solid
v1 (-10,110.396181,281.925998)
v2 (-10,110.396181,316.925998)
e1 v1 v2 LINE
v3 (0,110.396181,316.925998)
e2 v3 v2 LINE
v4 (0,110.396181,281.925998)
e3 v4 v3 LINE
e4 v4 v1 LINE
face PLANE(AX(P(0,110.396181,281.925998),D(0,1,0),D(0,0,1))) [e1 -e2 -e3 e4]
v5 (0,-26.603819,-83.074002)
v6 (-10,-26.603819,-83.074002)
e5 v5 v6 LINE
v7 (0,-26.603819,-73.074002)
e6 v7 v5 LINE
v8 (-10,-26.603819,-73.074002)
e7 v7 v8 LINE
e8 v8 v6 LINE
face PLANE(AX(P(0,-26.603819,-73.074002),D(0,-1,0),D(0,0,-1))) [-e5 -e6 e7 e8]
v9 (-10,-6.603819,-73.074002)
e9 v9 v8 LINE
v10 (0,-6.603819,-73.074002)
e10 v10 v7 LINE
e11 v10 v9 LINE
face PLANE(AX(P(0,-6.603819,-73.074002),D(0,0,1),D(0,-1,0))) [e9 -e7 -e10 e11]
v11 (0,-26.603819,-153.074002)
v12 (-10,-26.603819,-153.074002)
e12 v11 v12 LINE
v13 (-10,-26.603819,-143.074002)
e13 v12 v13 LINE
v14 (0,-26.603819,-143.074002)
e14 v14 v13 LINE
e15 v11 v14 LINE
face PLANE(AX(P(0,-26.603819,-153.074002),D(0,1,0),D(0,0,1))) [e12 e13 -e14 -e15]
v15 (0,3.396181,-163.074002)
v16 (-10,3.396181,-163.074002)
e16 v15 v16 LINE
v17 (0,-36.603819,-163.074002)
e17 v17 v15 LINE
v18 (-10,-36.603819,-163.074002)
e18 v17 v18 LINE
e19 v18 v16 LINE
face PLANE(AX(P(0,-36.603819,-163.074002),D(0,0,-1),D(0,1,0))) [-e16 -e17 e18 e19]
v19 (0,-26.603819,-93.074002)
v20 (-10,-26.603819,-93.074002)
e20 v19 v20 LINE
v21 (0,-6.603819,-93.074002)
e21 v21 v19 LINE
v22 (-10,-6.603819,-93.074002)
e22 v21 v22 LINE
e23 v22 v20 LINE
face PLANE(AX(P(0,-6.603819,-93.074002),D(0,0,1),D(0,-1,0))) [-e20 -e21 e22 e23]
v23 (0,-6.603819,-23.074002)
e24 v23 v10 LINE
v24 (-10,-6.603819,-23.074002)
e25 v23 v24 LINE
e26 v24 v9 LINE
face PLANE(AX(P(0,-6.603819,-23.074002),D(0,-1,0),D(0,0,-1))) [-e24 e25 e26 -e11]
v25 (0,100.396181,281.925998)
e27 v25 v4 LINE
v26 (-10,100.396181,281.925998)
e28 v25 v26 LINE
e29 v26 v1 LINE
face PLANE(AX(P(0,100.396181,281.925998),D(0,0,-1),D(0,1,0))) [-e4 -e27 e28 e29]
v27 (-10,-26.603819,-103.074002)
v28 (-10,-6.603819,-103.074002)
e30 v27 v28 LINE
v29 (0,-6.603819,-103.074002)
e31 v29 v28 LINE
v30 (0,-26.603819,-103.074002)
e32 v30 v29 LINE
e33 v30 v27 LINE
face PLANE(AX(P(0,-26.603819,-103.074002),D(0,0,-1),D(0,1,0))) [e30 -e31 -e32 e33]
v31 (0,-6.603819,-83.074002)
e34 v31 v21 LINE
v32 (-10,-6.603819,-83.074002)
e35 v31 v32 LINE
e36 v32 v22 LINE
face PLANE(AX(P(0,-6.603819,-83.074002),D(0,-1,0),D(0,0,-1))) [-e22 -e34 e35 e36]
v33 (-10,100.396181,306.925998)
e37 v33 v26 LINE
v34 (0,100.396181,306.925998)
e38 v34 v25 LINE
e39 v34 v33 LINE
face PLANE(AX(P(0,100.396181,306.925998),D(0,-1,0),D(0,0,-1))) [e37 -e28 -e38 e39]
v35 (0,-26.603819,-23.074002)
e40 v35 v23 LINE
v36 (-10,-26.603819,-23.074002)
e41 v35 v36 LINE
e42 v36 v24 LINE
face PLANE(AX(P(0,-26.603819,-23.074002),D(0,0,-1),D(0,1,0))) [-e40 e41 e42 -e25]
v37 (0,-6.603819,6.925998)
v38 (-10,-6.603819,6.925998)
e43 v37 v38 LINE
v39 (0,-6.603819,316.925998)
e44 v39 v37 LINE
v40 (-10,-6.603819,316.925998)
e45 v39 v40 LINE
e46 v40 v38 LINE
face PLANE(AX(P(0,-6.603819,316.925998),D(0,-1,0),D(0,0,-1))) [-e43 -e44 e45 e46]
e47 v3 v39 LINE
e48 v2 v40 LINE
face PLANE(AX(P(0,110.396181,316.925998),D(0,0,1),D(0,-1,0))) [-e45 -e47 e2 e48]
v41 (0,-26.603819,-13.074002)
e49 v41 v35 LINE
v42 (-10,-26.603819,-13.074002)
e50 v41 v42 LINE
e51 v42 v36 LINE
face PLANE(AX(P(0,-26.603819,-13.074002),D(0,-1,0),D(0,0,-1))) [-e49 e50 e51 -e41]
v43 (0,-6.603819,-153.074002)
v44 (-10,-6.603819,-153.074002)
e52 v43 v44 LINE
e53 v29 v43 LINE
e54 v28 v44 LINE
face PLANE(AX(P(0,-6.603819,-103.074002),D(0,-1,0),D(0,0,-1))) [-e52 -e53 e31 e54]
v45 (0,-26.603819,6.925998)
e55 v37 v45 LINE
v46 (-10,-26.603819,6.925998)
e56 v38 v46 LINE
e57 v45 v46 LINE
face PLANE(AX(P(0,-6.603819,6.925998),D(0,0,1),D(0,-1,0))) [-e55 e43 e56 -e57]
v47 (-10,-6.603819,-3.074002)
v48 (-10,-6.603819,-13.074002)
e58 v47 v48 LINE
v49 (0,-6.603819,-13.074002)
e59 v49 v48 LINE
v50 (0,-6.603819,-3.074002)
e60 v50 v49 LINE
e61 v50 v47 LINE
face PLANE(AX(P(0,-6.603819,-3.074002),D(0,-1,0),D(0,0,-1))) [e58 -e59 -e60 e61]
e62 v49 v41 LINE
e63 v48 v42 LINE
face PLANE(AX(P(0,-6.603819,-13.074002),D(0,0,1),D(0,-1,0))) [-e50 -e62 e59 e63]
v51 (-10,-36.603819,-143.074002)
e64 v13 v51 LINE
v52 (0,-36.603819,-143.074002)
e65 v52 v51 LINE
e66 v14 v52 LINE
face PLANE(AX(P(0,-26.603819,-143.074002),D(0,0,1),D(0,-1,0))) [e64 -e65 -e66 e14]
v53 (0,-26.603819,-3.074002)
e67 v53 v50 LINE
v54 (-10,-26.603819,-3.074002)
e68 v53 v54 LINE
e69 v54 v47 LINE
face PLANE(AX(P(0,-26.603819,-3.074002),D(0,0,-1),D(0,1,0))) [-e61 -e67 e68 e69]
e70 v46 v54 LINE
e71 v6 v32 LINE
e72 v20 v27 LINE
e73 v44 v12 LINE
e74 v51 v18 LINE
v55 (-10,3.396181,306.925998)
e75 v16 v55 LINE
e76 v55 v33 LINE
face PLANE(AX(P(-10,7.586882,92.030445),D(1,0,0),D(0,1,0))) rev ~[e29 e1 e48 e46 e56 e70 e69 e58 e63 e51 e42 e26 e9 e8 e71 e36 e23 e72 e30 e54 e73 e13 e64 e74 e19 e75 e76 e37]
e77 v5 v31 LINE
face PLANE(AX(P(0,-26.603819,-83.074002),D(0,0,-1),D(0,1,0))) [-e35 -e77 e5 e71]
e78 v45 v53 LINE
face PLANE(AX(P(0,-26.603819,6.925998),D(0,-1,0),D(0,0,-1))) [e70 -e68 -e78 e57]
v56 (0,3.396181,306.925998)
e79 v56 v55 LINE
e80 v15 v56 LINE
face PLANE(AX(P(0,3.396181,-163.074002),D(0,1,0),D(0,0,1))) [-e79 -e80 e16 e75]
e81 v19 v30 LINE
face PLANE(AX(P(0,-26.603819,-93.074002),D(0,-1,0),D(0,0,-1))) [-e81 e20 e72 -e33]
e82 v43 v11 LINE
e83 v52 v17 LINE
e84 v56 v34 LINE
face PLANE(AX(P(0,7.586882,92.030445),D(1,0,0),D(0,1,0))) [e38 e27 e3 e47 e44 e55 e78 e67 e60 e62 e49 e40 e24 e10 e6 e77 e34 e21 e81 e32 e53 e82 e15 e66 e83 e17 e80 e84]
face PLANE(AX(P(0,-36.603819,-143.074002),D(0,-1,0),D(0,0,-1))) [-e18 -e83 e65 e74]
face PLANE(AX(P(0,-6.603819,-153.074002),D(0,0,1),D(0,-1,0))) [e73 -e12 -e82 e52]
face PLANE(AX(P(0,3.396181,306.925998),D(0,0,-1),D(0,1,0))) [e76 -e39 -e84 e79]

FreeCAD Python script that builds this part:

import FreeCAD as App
import Part
import Sketcher
from FreeCAD import Vector
Q = App.Units.Quantity


def add_polygon(sketch, points):
    """Adds a closed chain of lines whose ends are joined by coincident constraints."""
    first, n = sketch.GeometryCount, len(points)
    for a, b in zip(points, points[1:] + points[:1]):
        sketch.addGeometry(Part.LineSegment(App.Vector(*a, 0), App.Vector(*b, 0)), False)
    for i in range(n):
        sketch.addConstraint(Sketcher.Constraint("Coincident", first + i, 2, first + (i + 1) % n, 1))

doc = App.newDocument("Part")
body = doc.addObject("PartDesign::Body", "Body")

sketch1 = body.newObject("Sketcher::SketchObject", "Sketch")
sketch1.AttachmentSupport = (doc.getObject("YZ_Plane"), [""])
sketch1.MapMode = "FlatFace"
add_polygon(sketch1, [(110.396181, 316.925998), (-6.603819, 316.925998), (-6.603819, 6.925998), (-26.603819, 6.925998), (-26.603819, -3.074002), (-6.603819, -3.074002), (-6.603819, -13.074002), (-26.603819, -13.074002), (-26.603819, -23.074002), (-6.603819, -23.074002), (-6.603819, -73.074002), (-26.603819, -73.074002), (-26.603819, -83.074002), (-6.603819, -83.074002), (-6.603819, -93.074002), (-26.603819, -93.074002), (-26.603819, -103.074002), (-6.603819, -103.074002), (-6.603819, -153.074002), (-26.603819, -153.074002), (-26.603819, -143.074002), (-36.603819, -143.074002), (-36.603819, -163.074002), (3.396181, -163.074002), (3.396181, 306.925998), (100.396181, 306.925998), (100.396181, 281.925998), (110.396181, 281.925998)])
sketch1.addConstraint([
    Sketcher.Constraint("Horizontal", 0),
    Sketcher.Constraint("Vertical", 1),
    Sketcher.Constraint("Horizontal", 2),
    Sketcher.Constraint("Vertical", 3),
    Sketcher.Constraint("Horizontal", 4),
    Sketcher.Constraint("Vertical", 5),
    Sketcher.Constraint("Horizontal", 6),
    Sketcher.Constraint("Vertical", 7),
    Sketcher.Constraint("Horizontal", 8),
    Sketcher.Constraint("Vertical", 9),
    Sketcher.Constraint("Horizontal", 10),
    Sketcher.Constraint("Vertical", 11),
    Sketcher.Constraint("Horizontal", 12),
    Sketcher.Constraint("Vertical", 13),
    Sketcher.Constraint("Horizontal", 14),
    Sketcher.Constraint("Vertical", 15),
    Sketcher.Constraint("Horizontal", 16),
    Sketcher.Constraint("Vertical", 17),
    Sketcher.Constraint("Horizontal", 18),
    Sketcher.Constraint("Vertical", 19),
    Sketcher.Constraint("Horizontal", 20),
    Sketcher.Constraint("Vertical", 21),
    Sketcher.Constraint("Horizontal", 22),
    Sketcher.Constraint("Vertical", 23),
    Sketcher.Constraint("Horizontal", 24),
    Sketcher.Constraint("Vertical", 25),
    Sketcher.Constraint("Horizontal", 26),
    Sketcher.Constraint("Vertical", 27),
    Sketcher.Constraint("Vertical", 1, 2, 4, 2),
    Sketcher.Constraint("Vertical", 3, 2, 6, 2),
    Sketcher.Constraint("Vertical", 5, 2, 8, 2),
    Sketcher.Constraint("Vertical", 7, 2, 10, 2),
    Sketcher.Constraint("Vertical", 9, 2, 12, 2),
    Sketcher.Constraint("Vertical", 11, 2, 14, 2),
    Sketcher.Constraint("Vertical", 13, 2, 16, 2),
    Sketcher.Constraint("Vertical", 15, 2, 18, 2),
    Sketcher.Constraint("Equal", 20, 26),
    Sketcher.Constraint("Equal", 26, 3),
    Sketcher.Constraint("Equal", 3, 5),
    Sketcher.Constraint("Equal", 5, 7),
    Sketcher.Constraint("Equal", 7, 11),
    Sketcher.Constraint("Equal", 11, 13),
    Sketcher.Constraint("Equal", 13, 15),
    Sketcher.Constraint("Equal", 9, 17),
    Sketcher.Constraint("Equal", 15, 19),
    Sketcher.Constraint("Equal", 18, 21),
    Sketcher.Constraint("DistanceX", 0, 2, 0, 1, Q("117 mm")),
    Sketcher.Constraint("DistanceX", 2, 2, 2, 1, Q("20 mm")),
    Sketcher.Constraint("DistanceX", 20, 2, 20, 1, Q("10 mm")),
    Sketcher.Constraint("DistanceX", 22, 1, 22, 2, Q("40 mm")),
    Sketcher.Constraint("DistanceY", 1, 2, 1, 1, Q("310 mm")),
    Sketcher.Constraint("DistanceY", 9, 2, 9, 1, Q("50 mm")),
    Sketcher.Constraint("DistanceY", 23, 1, 23, 2, Q("470 mm")),
    Sketcher.Constraint("DistanceY", 25, 2, 25, 1, Q("25 mm")),
    Sketcher.Constraint("DistanceY", -1, 1, 0, 2, Q("316.925998 mm")),
    Sketcher.Constraint("DistanceX", 0, 2, -1, 1, Q("6.603819 mm")),
])
pad1 = body.newObject("PartDesign::Pad", "Pad")
pad1.Profile = sketch1
pad1.Length = 10
pad1.Reversed = True

doc.recompute()
